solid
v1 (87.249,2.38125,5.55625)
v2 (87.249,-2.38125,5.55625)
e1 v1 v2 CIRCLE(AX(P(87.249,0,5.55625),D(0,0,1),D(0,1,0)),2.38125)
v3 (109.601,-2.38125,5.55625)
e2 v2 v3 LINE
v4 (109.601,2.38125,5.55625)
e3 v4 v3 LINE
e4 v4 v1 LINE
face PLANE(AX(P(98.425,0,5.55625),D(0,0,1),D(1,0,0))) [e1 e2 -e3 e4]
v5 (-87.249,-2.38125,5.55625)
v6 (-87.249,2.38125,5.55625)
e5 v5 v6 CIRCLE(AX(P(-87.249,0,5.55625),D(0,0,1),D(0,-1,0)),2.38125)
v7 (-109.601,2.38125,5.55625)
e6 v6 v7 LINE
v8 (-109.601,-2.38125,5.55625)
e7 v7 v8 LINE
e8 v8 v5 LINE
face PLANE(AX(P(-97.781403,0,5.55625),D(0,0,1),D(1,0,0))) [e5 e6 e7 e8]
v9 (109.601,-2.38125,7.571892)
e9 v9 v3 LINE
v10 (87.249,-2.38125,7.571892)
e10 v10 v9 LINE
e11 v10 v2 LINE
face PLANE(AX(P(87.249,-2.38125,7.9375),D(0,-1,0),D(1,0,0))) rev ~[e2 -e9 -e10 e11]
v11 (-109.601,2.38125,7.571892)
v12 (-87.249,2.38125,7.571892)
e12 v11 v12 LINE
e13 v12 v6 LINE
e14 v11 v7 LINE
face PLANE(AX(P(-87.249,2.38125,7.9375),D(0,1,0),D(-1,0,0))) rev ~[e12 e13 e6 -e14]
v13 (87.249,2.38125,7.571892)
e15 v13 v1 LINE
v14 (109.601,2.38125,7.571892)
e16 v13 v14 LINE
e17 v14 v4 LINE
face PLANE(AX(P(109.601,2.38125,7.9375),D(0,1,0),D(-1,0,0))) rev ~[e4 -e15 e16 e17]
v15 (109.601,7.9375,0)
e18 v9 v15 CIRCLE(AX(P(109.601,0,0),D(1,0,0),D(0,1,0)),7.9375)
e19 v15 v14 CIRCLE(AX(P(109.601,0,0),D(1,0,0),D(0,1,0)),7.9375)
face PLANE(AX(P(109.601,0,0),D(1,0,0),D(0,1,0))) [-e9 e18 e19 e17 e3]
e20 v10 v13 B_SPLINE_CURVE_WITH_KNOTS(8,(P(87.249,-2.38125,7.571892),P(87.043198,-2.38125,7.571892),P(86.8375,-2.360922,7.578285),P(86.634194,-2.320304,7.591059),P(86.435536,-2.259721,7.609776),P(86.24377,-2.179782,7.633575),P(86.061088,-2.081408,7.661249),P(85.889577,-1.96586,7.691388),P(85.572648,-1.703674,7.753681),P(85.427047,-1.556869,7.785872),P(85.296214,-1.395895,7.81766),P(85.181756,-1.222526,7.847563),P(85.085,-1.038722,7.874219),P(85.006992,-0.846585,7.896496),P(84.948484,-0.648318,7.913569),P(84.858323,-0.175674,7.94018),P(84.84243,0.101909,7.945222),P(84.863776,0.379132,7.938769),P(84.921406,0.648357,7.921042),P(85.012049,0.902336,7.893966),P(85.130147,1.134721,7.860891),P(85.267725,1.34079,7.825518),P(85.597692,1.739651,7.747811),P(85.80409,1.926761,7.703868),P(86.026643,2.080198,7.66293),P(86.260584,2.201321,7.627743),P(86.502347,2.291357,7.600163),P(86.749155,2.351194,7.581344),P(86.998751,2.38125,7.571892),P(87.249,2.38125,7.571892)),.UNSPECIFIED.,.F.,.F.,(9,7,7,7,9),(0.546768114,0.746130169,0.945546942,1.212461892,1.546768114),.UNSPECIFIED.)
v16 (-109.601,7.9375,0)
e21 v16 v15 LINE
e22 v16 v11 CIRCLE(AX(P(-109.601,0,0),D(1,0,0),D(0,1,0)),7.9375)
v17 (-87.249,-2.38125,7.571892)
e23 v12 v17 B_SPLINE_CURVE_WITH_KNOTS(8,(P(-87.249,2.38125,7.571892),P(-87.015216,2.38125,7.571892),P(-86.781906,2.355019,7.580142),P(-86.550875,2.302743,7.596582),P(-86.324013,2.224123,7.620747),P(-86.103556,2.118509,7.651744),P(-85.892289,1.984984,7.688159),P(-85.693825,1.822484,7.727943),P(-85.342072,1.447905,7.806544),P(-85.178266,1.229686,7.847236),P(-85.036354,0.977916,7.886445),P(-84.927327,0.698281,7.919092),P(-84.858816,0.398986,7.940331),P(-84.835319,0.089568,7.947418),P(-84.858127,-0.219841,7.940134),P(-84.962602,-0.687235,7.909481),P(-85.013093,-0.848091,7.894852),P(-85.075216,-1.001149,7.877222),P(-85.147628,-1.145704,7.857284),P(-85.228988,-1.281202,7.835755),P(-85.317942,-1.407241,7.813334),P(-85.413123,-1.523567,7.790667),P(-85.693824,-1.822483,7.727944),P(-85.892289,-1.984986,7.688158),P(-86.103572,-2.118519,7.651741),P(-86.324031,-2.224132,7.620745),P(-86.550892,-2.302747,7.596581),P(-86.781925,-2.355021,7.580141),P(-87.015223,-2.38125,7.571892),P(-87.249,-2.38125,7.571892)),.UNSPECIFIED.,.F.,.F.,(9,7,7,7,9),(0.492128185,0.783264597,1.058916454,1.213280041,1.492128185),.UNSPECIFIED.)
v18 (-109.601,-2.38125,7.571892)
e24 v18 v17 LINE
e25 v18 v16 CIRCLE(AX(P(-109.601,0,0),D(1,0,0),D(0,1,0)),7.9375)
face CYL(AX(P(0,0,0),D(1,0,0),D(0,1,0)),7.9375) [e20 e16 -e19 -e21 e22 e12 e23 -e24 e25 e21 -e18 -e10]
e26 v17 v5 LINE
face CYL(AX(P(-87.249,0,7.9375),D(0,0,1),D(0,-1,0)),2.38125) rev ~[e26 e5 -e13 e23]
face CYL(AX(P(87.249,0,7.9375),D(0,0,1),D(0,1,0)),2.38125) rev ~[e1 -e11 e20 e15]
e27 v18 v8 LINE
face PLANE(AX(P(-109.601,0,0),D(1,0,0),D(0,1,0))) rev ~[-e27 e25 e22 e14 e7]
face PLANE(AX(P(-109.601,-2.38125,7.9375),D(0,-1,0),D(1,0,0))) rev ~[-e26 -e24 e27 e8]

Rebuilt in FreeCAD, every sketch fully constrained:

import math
import FreeCAD as App
import Part
import Sketcher
from FreeCAD import Vector
Q = App.Units.Quantity

doc = App.newDocument("Part")
body = doc.addObject("PartDesign::Body", "Body")

# Sketch on YZ plane
sketch1 = body.newObject("Sketcher::SketchObject", "Sketch")
sketch1.AttachmentSupport = (doc.getObject("YZ_Plane"), [""])
sketch1.MapMode = "FlatFace"
sketch1.addGeometry(Part.Circle(Vector(0, 0, 0), Vector(0, 0, 1), 7.9375), False)
sketch1.addConstraint(Sketcher.Constraint("Coincident", 0, 3, -1, 1))
sketch1.addConstraint(Sketcher.Constraint("Diameter", 0, Q("0.625 in")))
pad1 = body.newObject("PartDesign::Pad", "Pad")
pad1.Profile = sketch1
pad1.Length = Q("8.63 in")
pad1.Midplane = True

# Sketch on XY plane
sketch2 = body.newObject("Sketcher::SketchObject", "Sketch001")
sketch2.AttachmentSupport = (doc.getObject("XY_Plane"), [""])
sketch2.MapMode = "FlatFace"
sketch2.AttachmentOffset = App.Placement(Vector(0, 0, 0.3125 * 25.4), App.Rotation())
sketch2.addGeometry(Part.ArcOfCircle(Part.Circle(Vector(109.601, 0, 0), Vector(0, 0, 1), 2.38125), math.radians(-90), math.radians(90)), False)
sketch2.addGeometry(Part.LineSegment(Vector(109.601, 2.38125, 0), Vector(87.249, 2.38125, 0)), False)
sketch2.addGeometry(Part.ArcOfCircle(Part.Circle(Vector(87.249, 0, 0), Vector(0, 0, 1), 2.38125), math.radians(90), math.radians(270)), False)
sketch2.addGeometry(Part.LineSegment(Vector(87.249, -2.38125, 0), Vector(109.601, -2.38125, 0)), False)
sketch2.addGeometry(Part.LineSegment(Vector(-109.601, -2.38125, 0), Vector(-87.249, -2.38125, 0)), False)
sketch2.addGeometry(Part.ArcOfCircle(Part.Circle(Vector(-87.249, 0, 0), Vector(0, 0, 1), 2.38125), math.radians(-90), math.radians(90)), False)
sketch2.addGeometry(Part.LineSegment(Vector(-87.249, 2.38125, 0), Vector(-109.601, 2.38125, 0)), False)
sketch2.addGeometry(Part.ArcOfCircle(Part.Circle(Vector(-109.601, 0, 0), Vector(0, 0, 1), 2.38125), math.radians(90), math.radians(270)), False)
sketch2.addConstraint(Sketcher.Constraint("Tangent", 0, 2, 1, 1))
sketch2.addConstraint(Sketcher.Constraint("Tangent", 1, 2, 2, 1))
sketch2.addConstraint(Sketcher.Constraint("Tangent", 2, 2, 3, 1))
sketch2.addConstraint(Sketcher.Constraint("Tangent", 3, 2, 0, 1))
sketch2.addConstraint(Sketcher.Constraint("Tangent", 4, 2, 5, 1))
sketch2.addConstraint(Sketcher.Constraint("Tangent", 5, 2, 6, 1))
sketch2.addConstraint(Sketcher.Constraint("Tangent", 6, 2, 7, 1))
sketch2.addConstraint(Sketcher.Constraint("Tangent", 7, 2, 4, 1))
sketch2.addConstraint(Sketcher.Constraint("Horizontal", 1))
sketch2.addConstraint(Sketcher.Constraint("Horizontal", 3))
sketch2.addConstraint(Sketcher.Constraint("Horizontal", 4))
sketch2.addConstraint(Sketcher.Constraint("Horizontal", 6))
sketch2.addConstraint(Sketcher.Constraint("Equal", 2, 5))
sketch2.addConstraint(Sketcher.Constraint("Symmetric", 2, 3, 5, 3, -1, 1))
sketch2.addConstraint(Sketcher.Constraint("Symmetric", 0, 3, 7, 3, -2))
sketch2.addConstraint(Sketcher.Constraint("Radius", 0, Q("0.09375 in")))
sketch2.addConstraint(Sketcher.Constraint("DistanceX", 1, 2, 1, 1, Q("0.88 in")))
sketch2.addConstraint(Sketcher.Constraint("DistanceX", 5, 3, 2, 3, Q("6.87 in")))
pocket1 = body.newObject("PartDesign::Pocket", "Pocket")
pocket1.Profile = sketch2
pocket1.Length = Q("0.09375 in")

doc.recompute()
